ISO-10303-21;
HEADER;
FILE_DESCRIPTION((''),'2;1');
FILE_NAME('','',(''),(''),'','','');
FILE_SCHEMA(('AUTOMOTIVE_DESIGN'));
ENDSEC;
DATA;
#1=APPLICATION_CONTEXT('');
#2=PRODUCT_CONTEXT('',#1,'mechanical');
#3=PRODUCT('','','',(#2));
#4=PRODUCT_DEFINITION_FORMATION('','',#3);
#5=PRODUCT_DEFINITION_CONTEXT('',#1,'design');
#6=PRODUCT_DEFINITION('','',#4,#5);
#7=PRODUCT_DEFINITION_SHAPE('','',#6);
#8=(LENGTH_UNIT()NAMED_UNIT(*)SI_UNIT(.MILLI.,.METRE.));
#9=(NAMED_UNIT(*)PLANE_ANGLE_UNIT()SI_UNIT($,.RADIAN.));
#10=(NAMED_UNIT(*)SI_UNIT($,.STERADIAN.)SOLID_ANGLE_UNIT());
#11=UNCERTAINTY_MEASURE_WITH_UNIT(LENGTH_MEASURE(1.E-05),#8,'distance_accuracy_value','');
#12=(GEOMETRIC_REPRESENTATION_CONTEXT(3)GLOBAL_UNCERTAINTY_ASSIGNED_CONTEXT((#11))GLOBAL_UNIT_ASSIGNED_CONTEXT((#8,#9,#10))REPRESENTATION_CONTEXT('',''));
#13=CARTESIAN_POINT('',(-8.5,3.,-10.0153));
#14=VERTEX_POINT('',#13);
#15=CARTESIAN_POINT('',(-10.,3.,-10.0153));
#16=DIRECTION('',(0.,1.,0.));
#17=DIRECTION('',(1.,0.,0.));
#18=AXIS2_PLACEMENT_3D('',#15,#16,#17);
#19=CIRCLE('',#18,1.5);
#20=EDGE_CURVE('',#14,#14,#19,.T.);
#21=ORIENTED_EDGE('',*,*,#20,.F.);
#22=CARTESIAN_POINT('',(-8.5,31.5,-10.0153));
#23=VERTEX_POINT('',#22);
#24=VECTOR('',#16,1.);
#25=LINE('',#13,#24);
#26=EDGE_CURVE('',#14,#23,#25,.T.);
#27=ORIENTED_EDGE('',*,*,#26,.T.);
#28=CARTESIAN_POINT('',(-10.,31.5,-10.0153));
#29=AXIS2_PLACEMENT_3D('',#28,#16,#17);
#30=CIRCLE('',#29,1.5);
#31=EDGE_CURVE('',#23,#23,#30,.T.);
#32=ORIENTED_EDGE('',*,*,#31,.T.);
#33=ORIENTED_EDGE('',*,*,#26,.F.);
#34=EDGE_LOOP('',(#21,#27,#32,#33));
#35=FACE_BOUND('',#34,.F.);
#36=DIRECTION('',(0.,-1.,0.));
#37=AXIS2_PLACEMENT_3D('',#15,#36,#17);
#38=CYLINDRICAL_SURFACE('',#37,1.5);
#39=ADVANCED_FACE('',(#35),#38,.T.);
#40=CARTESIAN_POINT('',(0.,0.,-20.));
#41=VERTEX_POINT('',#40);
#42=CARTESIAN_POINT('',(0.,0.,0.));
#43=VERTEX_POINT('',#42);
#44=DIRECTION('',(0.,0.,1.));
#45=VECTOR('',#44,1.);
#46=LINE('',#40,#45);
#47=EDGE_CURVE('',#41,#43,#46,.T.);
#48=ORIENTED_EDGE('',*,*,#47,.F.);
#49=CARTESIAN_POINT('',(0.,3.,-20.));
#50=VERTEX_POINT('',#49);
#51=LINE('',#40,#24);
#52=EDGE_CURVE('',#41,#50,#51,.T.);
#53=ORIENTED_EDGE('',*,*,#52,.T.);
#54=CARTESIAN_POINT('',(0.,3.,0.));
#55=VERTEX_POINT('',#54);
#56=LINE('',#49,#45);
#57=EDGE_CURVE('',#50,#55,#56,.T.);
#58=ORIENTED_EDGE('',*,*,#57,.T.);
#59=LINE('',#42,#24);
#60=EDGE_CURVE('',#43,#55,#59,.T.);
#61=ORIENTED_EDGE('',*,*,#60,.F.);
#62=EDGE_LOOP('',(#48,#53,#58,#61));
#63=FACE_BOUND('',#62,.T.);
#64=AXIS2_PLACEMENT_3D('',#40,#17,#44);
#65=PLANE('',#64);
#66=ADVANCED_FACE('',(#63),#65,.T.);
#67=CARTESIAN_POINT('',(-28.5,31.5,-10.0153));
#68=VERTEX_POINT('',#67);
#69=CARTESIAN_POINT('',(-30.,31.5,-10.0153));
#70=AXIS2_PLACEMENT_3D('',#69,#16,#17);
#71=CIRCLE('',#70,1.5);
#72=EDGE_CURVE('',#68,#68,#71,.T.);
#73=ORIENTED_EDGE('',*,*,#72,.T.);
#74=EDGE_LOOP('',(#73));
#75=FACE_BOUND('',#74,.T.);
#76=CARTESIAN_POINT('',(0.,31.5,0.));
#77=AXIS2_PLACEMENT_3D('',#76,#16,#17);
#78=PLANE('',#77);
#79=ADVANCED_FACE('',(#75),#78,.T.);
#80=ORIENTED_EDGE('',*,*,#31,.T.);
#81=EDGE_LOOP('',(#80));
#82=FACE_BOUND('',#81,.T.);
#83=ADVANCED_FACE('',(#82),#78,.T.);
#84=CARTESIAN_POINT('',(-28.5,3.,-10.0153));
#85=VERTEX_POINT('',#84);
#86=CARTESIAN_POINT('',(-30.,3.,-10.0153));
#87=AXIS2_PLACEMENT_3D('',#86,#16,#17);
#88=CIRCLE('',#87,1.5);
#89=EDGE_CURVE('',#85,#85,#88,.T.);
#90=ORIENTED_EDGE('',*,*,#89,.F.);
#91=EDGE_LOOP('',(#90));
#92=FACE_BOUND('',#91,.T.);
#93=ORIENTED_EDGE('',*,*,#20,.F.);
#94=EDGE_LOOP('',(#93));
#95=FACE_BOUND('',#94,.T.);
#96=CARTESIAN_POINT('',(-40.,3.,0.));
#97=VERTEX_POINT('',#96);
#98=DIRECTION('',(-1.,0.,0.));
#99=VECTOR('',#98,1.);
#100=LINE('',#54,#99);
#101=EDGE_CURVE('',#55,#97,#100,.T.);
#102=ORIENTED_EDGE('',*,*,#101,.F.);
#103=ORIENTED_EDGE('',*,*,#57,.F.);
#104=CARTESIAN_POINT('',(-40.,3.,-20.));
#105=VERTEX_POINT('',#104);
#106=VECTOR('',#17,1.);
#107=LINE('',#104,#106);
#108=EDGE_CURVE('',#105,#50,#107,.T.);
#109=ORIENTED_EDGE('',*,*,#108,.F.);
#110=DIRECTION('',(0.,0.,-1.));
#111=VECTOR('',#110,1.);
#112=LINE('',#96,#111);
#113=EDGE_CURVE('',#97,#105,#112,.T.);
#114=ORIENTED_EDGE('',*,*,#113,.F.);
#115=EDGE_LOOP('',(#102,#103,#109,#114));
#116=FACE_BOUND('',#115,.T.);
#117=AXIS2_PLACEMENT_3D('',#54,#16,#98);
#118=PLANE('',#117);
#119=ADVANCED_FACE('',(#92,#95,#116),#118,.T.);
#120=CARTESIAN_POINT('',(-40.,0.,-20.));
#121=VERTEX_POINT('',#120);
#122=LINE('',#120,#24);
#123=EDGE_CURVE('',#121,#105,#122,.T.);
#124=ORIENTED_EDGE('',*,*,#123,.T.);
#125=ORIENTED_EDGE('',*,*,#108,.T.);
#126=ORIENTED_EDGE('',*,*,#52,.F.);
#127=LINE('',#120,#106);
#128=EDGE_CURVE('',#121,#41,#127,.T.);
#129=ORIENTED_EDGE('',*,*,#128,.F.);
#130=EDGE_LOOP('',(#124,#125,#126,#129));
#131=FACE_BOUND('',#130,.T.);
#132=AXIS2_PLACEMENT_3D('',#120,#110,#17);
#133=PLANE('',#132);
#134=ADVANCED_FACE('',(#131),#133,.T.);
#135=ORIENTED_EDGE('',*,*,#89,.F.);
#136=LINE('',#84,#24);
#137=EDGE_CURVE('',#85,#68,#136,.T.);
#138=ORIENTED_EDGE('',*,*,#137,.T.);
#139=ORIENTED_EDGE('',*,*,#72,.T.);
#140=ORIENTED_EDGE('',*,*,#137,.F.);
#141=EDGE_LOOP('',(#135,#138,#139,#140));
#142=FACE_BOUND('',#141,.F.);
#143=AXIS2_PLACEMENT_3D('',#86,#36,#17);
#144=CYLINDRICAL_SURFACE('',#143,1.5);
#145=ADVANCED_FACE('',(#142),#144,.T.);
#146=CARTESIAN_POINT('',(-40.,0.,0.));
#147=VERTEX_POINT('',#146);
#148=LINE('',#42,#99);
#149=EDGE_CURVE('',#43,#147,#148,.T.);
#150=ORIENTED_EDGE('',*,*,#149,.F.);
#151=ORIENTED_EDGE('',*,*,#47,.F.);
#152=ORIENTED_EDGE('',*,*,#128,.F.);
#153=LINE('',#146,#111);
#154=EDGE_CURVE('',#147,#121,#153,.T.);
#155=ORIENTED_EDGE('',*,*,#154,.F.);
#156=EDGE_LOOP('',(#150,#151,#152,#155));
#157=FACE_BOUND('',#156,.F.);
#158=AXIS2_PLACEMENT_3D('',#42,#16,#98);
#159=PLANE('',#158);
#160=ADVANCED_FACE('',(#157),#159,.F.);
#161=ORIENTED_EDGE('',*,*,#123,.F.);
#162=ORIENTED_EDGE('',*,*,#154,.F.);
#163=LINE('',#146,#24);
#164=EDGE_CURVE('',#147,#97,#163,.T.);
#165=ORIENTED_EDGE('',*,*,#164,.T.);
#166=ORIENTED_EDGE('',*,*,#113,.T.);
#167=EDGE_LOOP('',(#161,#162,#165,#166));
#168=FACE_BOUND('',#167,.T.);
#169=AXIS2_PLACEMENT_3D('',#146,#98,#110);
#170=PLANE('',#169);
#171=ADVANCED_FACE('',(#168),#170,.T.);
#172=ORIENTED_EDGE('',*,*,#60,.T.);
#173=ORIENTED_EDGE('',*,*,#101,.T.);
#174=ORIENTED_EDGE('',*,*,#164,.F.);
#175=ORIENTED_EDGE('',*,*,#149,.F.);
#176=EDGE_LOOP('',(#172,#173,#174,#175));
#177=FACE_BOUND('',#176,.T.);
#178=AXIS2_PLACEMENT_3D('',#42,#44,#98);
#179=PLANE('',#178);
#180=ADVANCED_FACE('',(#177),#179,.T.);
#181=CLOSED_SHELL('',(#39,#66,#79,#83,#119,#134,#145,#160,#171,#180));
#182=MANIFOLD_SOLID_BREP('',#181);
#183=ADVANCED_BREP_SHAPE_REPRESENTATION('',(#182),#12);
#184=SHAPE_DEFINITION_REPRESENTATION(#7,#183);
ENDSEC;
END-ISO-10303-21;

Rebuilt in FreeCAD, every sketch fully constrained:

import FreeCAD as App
import Part
import Sketcher
from FreeCAD import Vector

doc = App.newDocument("Part")
body = doc.addObject("PartDesign::Body", "Body")

# Sketch on XZ plane
sketch1 = doc.addObject("Sketcher::SketchObject", "Sketch")
body.addObject(sketch1)
sketch1.AttachmentSupport = (doc.XZ_Plane, [""])
sketch1.MapMode = "FlatFace"
sketch1.addGeometry(Part.LineSegment(Vector(-40, 0, 0), Vector(0, 0, 0)), False)
sketch1.addGeometry(Part.LineSegment(Vector(0, 0, 0), Vector(0, -20, 0)), False)
sketch1.addGeometry(Part.LineSegment(Vector(0, -20, 0), Vector(-40, -20, 0)), False)
sketch1.addGeometry(Part.LineSegment(Vector(-40, -20, 0), Vector(-40, 0, 0)), False)
sketch1.addConstraint(Sketcher.Constraint("Coincident", 0, 2, 1, 1))
sketch1.addConstraint(Sketcher.Constraint("Coincident", 1, 2, 2, 1))
sketch1.addConstraint(Sketcher.Constraint("Coincident", 2, 2, 3, 1))
sketch1.addConstraint(Sketcher.Constraint("Coincident", 3, 2, 0, 1))
sketch1.addConstraint(Sketcher.Constraint("Horizontal", 0))
sketch1.addConstraint(Sketcher.Constraint("Vertical", 1))
sketch1.addConstraint(Sketcher.Constraint("Horizontal", 2))
sketch1.addConstraint(Sketcher.Constraint("Vertical", 3))
sketch1.addConstraint(Sketcher.Constraint("Coincident", 0, 2, -1, 1))
sketch1.addConstraint(Sketcher.Constraint("DistanceX", 0, 1, 0, 2, 40.0))
sketch1.addConstraint(Sketcher.Constraint("DistanceY", 1, 2, 1, 1, 20.0))
pad1 = doc.addObject("PartDesign::Pad", "Pad")
body.addObject(pad1)
pad1.Profile = sketch1
pad1.Length = 3
pad1.Reversed = True

# Sketch on XZ plane
sketch2 = doc.addObject("Sketcher::SketchObject", "Sketch001")
body.addObject(sketch2)
sketch2.AttachmentSupport = (doc.XZ_Plane, [""])
sketch2.MapMode = "FlatFace"
sketch2.AttachmentOffset = App.Placement(Vector(0, 0, -3), App.Rotation())
sketch2.addGeometry(Part.Circle(Vector(-30, -10, 0), Vector(0, 0, 1), 1.5), False)
sketch2.addGeometry(Part.Circle(Vector(-10, -10, 0), Vector(0, 0, 1), 1.5), False)
sketch2.addConstraint(Sketcher.Constraint("Equal", 0, 1))
sketch2.addConstraint(Sketcher.Constraint("Horizontal", 0, 3, 1, 3))
sketch2.addConstraint(Sketcher.Constraint("Diameter", 0, 3.0))
sketch2.addConstraint(Sketcher.Constraint("DistanceX", 1, 3, -1, 1, 10.0))
sketch2.addConstraint(Sketcher.Constraint("DistanceX", 0, 3, -1, 1, 30.0))
sketch2.addConstraint(Sketcher.Constraint("DistanceY", 0, 3, -1, 1, 10.0153))
pad2 = doc.addObject("PartDesign::Pad", "Pad001")
body.addObject(pad2)
pad2.Profile = sketch2
pad2.Length = 28.5
pad2.Reversed = True

doc.recompute()
